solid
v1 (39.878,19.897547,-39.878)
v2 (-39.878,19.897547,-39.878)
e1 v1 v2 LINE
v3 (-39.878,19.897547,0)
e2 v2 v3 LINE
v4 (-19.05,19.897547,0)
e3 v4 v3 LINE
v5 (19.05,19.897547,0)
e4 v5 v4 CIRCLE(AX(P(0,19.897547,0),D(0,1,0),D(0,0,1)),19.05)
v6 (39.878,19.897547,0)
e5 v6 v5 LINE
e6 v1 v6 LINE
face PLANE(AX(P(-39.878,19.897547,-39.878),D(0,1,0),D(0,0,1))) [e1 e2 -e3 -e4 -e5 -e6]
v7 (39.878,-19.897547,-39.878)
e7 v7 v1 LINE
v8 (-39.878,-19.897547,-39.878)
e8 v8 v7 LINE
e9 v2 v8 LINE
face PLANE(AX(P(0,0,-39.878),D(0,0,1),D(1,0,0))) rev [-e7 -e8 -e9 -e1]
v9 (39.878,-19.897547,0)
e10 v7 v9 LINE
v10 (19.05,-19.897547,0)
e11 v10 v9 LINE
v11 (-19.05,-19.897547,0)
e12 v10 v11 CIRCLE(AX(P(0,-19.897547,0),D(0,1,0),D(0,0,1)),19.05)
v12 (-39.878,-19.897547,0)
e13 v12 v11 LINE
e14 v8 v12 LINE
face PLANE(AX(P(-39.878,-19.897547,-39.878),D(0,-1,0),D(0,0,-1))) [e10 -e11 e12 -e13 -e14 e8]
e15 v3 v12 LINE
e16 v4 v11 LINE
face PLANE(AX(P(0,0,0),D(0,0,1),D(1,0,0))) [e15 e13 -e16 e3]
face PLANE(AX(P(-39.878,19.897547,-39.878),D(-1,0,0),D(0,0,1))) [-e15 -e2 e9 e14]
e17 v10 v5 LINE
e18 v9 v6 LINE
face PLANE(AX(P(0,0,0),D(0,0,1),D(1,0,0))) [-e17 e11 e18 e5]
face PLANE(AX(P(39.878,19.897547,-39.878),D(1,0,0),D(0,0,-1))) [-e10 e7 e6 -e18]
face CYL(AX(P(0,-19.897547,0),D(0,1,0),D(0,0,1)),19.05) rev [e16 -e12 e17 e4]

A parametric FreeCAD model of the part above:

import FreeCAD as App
import Part
import Sketcher

V = App.Vector
Q = App.Units.Quantity

doc = App.newDocument("Part")
params = doc.addObject("Spreadsheet::Sheet", "Params")
for row, (alias, value) in enumerate([
    ("sketch1_width", "3.14 in"),
    ("pad1_length", "1.57 in"),
    ("sketch2_diameter", "1.5 in"),
], start=1):
    params.set(f"A{row}", alias)
    params.set(f"B{row}", "=" + value)
    params.setAlias(f"B{row}", alias)

body = doc.addObject("PartDesign::Body", "Body")

sketch1 = doc.addObject("Sketcher::SketchObject", "Sketch")
body.addObject(sketch1)
sketch1.AttachmentSupport = (doc.XY_Plane, [""])
sketch1.MapMode = "FlatFace"
sketch1.addGeometry(Part.LineSegment(V(-40, 20, 0), V(-40, -20, 0)), False)
sketch1.addGeometry(Part.LineSegment(V(-40, -20, 0), V(40, -20, 0)), False)
sketch1.addGeometry(Part.LineSegment(V(40, -20, 0), V(40, 20, 0)), False)
sketch1.addGeometry(Part.LineSegment(V(40, 20, 0), V(-40, 20, 0)), False)
sketch1.addConstraint(Sketcher.Constraint("Coincident", 0, 2, 1, 1))
sketch1.addConstraint(Sketcher.Constraint("Coincident", 1, 2, 2, 1))
sketch1.addConstraint(Sketcher.Constraint("Coincident", 2, 2, 3, 1))
sketch1.addConstraint(Sketcher.Constraint("Coincident", 3, 2, 0, 1))
sketch1.addConstraint(Sketcher.Constraint("Vertical", 0))
sketch1.addConstraint(Sketcher.Constraint("Horizontal", 1))
sketch1.addConstraint(Sketcher.Constraint("Vertical", 2))
sketch1.addConstraint(Sketcher.Constraint("Horizontal", 3))
sketch1.addConstraint(Sketcher.Constraint("Symmetric", 0, 2, 2, 2, -1, 1))
sketch1.addConstraint(Sketcher.Constraint("DistanceX", 1, 1, 1, 2, Q("3.14 in")))
sketch1.addConstraint(Sketcher.Constraint("DistanceY", 0, 2, 0, 1, Q("39.795094 mm")))
sketch1.setExpression("Constraints[9]", "Params.sketch1_width")
pad1 = doc.addObject("PartDesign::Pad", "Pad")
body.addObject(pad1)
pad1.Profile = sketch1
pad1.setExpression("Length", "Params.pad1_length")
pad1.Reversed = True

sketch2 = doc.addObject("Sketcher::SketchObject", "Sketch001")
body.addObject(sketch2)
sketch2.AttachmentSupport = (doc.XZ_Plane, [""])
sketch2.MapMode = "FlatFace"
sketch2.AttachmentOffset = App.Placement(V(0, 0, -19.897547), App.Rotation())
sketch2.addGeometry(Part.Circle(V(0, 0, 0), V(0, 0, 1), 19), False)
sketch2.addConstraint(Sketcher.Constraint("Coincident", 0, 3, -1, 1))
sketch2.addConstraint(Sketcher.Constraint("Diameter", 0, Q("1.5 in")))
sketch2.setExpression("Constraints[1]", "Params.sketch2_diameter")
pocket1 = doc.addObject("PartDesign::Pocket", "Pocket")
body.addObject(pocket1)
pocket1.Profile = sketch2
pocket1.Type = "ThroughAll"
pocket1.Midplane = True

doc.recompute()
